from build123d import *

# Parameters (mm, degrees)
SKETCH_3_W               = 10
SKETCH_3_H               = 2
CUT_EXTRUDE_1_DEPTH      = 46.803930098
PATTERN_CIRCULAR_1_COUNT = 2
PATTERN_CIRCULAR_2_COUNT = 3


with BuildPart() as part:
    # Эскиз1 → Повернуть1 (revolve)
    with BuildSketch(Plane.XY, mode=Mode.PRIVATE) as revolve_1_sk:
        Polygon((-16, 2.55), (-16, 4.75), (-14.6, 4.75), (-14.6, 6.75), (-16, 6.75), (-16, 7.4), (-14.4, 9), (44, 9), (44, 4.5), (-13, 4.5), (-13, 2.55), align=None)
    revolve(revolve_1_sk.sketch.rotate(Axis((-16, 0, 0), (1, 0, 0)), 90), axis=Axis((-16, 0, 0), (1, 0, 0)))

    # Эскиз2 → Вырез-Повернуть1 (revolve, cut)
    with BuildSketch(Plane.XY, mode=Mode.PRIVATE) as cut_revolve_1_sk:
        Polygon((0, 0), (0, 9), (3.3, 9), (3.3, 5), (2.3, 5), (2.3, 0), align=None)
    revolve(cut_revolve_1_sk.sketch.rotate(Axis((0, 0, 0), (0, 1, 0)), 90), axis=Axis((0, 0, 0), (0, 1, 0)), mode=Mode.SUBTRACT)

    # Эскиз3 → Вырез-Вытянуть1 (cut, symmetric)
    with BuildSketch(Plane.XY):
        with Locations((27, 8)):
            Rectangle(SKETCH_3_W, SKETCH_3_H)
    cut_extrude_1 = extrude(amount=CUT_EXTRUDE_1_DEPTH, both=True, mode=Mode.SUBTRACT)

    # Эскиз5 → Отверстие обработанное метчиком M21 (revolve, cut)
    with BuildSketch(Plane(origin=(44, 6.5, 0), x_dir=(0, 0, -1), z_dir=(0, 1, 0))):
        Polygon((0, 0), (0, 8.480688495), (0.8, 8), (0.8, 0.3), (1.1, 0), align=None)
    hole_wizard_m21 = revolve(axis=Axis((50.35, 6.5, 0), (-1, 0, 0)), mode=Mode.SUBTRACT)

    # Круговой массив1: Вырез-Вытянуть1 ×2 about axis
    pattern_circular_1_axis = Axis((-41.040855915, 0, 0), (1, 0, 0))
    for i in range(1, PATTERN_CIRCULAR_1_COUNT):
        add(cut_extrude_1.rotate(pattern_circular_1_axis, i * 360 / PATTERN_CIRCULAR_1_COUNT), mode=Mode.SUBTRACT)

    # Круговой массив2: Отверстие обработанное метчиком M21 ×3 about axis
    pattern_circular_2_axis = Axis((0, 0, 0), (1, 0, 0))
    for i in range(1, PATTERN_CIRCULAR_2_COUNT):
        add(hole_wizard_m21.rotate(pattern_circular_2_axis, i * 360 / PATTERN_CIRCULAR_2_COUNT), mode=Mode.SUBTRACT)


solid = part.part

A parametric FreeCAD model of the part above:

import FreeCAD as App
import Part
import Sketcher
from FreeCAD import Vector
Q = App.Units.Quantity

doc = App.newDocument("Part")
body = doc.addObject("PartDesign::Body", "Body")

# Sketch on XY plane
sketch1 = body.newObject("Sketcher::SketchObject", "Sketch")
sketch1.AttachmentSupport = (doc.getObject("XY_Plane"), [""])
sketch1.MapMode = "FlatFace"
sketch1.addGeometry([
    Part.LineSegment(Vector(-16, 4.8, 0), Vector(-16, 2.5, 0)),  # 0
    Part.LineSegment(Vector(-16, 2.5, 0), Vector(-13, 2.5, 0)),  # 1
    Part.LineSegment(Vector(-13, 2.5, 0), Vector(-13, 4.5, 0)),  # 2
    Part.LineSegment(Vector(-13, 4.5, 0), Vector(44, 4.5, 0)),  # 3
    Part.LineSegment(Vector(44, 4.5, 0), Vector(44, 9, 0)),  # 4
    Part.LineSegment(Vector(44, 9, 0), Vector(-14.4, 9, 0)),  # 5
    Part.LineSegment(Vector(-14.4, 9, 0), Vector(-16, 7.4, 0)),  # 6
    Part.LineSegment(Vector(-16, 7.4, 0), Vector(-16, 6.8, 0)),  # 7
    Part.LineSegment(Vector(-16, 6.8, 0), Vector(-14.6, 6.8, 0)),  # 8
    Part.LineSegment(Vector(-14.6, 6.8, 0), Vector(-14.6, 4.8, 0)),  # 9
    Part.LineSegment(Vector(-14.6, 4.8, 0), Vector(-16, 4.8, 0)),  # 10
], False)
sketch1.addConstraint([
    Sketcher.Constraint("Coincident", 0, 2, 1, 1),
    Sketcher.Constraint("Coincident", 1, 2, 2, 1),
    Sketcher.Constraint("Coincident", 2, 2, 3, 1),
    Sketcher.Constraint("Coincident", 3, 2, 4, 1),
    Sketcher.Constraint("Coincident", 4, 2, 5, 1),
    Sketcher.Constraint("Coincident", 5, 2, 6, 1),
    Sketcher.Constraint("Coincident", 6, 2, 7, 1),
    Sketcher.Constraint("Coincident", 7, 2, 8, 1),
    Sketcher.Constraint("Coincident", 8, 2, 9, 1),
    Sketcher.Constraint("Coincident", 9, 2, 10, 1),
    Sketcher.Constraint("Coincident", 10, 2, 0, 1),
    Sketcher.Constraint("Vertical", 0),
    Sketcher.Constraint("Horizontal", 1),
    Sketcher.Constraint("Vertical", 2),
    Sketcher.Constraint("Horizontal", 3),
    Sketcher.Constraint("Vertical", 4),
    Sketcher.Constraint("Horizontal", 5),
    Sketcher.Constraint("Vertical", 7),
    Sketcher.Constraint("Horizontal", 8),
    Sketcher.Constraint("Vertical", 9),
    Sketcher.Constraint("Horizontal", 10),
    Sketcher.Constraint("Vertical", 0, 2, 6, 2),
    Sketcher.Constraint("DistanceX", 1, 1, 1, 2, Q("3 mm")),
    Sketcher.Constraint("DistanceX", 3, 1, 3, 2, Q("57 mm")),
    Sketcher.Constraint("DistanceY", 9, 2, 9, 1, Q("2 mm")),
    Sketcher.Constraint("Angle", 6, Q("-135 deg")),
    Sketcher.Constraint("DistanceX", 5, 2, 5, 1, Q("58.4 mm")),
    Sketcher.Constraint("DistanceX", 8, 1, 8, 2, Q("1.4 mm")),
    Sketcher.Constraint("DistanceY", 0, 2, 0, 1, Q("2.2 mm")),
    Sketcher.Constraint("DistanceY", 4, 1, 4, 2, Q("4.5 mm")),
    Sketcher.Constraint("DistanceX", 0, 2, -1, 1, Q("16 mm")),
    Sketcher.Constraint("DistanceY", -1, 1, 4, 2, Q("9 mm")),
    Sketcher.Constraint("DistanceY", 2, 1, 2, 2, Q("1.95 mm")),
])
revolution = body.newObject("PartDesign::Revolution", "Revolution")
revolution.Profile = sketch1
revolution.ReferenceAxis = (sketch1, ["H_Axis"])
revolution.Angle = 360

# Sketch on XY plane
sketch2 = body.newObject("Sketcher::SketchObject", "Sketch001")
sketch2.AttachmentSupport = (doc.getObject("XY_Plane"), [""])
sketch2.MapMode = "FlatFace"
sketch2.addGeometry([
    Part.LineSegment(Vector(0, 9, 0), Vector(0, 0, 0)),  # 0
    Part.LineSegment(Vector(0, 0, 0), Vector(2.3, 0, 0)),  # 1
    Part.LineSegment(Vector(2.3, 0, 0), Vector(2.3, 5, 0)),  # 2
    Part.LineSegment(Vector(2.3, 5, 0), Vector(3.3, 5, 0)),  # 3
    Part.LineSegment(Vector(3.3, 5, 0), Vector(3.3, 9, 0)),  # 4
    Part.LineSegment(Vector(3.3, 9, 0), Vector(0, 9, 0)),  # 5
], False)
sketch2.addConstraint([
    Sketcher.Constraint("Coincident", 0, 2, 1, 1),
    Sketcher.Constraint("Coincident", 1, 2, 2, 1),
    Sketcher.Constraint("Coincident", 2, 2, 3, 1),
    Sketcher.Constraint("Coincident", 3, 2, 4, 1),
    Sketcher.Constraint("Coincident", 4, 2, 5, 1),
    Sketcher.Constraint("Coincident", 5, 2, 0, 1),
    Sketcher.Constraint("Vertical", 0),
    Sketcher.Constraint("Horizontal", 1),
    Sketcher.Constraint("Vertical", 2),
    Sketcher.Constraint("Horizontal", 3),
    Sketcher.Constraint("Vertical", 4),
    Sketcher.Constraint("Horizontal", 5),
    Sketcher.Constraint("Coincident", 0, 2, -1, 1),
    Sketcher.Constraint("DistanceX", 3, 1, 3, 2, Q("1 mm")),
    Sketcher.Constraint("DistanceY", 0, 2, 0, 1, Q("9 mm")),
    Sketcher.Constraint("DistanceY", 2, 1, 2, 2, Q("5 mm")),
    Sketcher.Constraint("DistanceX", 1, 1, 1, 2, Q("2.3 mm")),
])
groove = body.newObject("PartDesign::Groove", "Groove")
groove.Profile = sketch2
groove.ReferenceAxis = (sketch2, ["V_Axis"])
groove.Angle = 360

# Sketch on XY plane
sketch3 = body.newObject("Sketcher::SketchObject", "Sketch002")
sketch3.AttachmentSupport = (doc.getObject("XY_Plane"), [""])
sketch3.MapMode = "FlatFace"
sketch3.addGeometry([
    Part.LineSegment(Vector(22, 9, 0), Vector(22, 7, 0)),
    Part.LineSegment(Vector(22, 7, 0), Vector(32, 7, 0)),
    Part.LineSegment(Vector(32, 7, 0), Vector(32, 9, 0)),
    Part.LineSegment(Vector(32, 9, 0), Vector(22, 9, 0)),
], False)
sketch3.addConstraint([
    Sketcher.Constraint("Coincident", 0, 2, 1, 1),
    Sketcher.Constraint("Coincident", 1, 2, 2, 1),
    Sketcher.Constraint("Coincident", 2, 2, 3, 1),
    Sketcher.Constraint("Coincident", 3, 2, 0, 1),
    Sketcher.Constraint("Vertical", 0),
    Sketcher.Constraint("Horizontal", 1),
    Sketcher.Constraint("Vertical", 2),
    Sketcher.Constraint("Horizontal", 3),
    Sketcher.Constraint("DistanceX", 1, 1, 1, 2, Q("10 mm")),
    Sketcher.Constraint("DistanceY", 0, 2, 0, 1, Q("2 mm")),
    Sketcher.Constraint("DistanceX", -1, 1, 0, 2, Q("22 mm")),
    Sketcher.Constraint("DistanceY", -1, 1, 0, 2, Q("7 mm")),
])
pocket1 = body.newObject("PartDesign::Pocket", "Pocket")
pocket1.Profile = sketch3
pocket1.Length = 93.60786
pocket1.Midplane = True

# Sketch on XZ plane
sketch4 = body.newObject("Sketcher::SketchObject", "Sketch003")
sketch4.AttachmentSupport = (doc.getObject("XZ_Plane"), [""])
sketch4.MapMode = "FlatFace"
sketch4.AttachmentOffset = App.Placement(Vector(0, 0, -6.5), App.Rotation())
sketch4.addGeometry([
    Part.LineSegment(Vector(35.52, 0, 0), Vector(44, 0, 0)),  # 0
    Part.LineSegment(Vector(44, 0, 0), Vector(44, -1.1, 0)),  # 1
    Part.LineSegment(Vector(44, -1.1, 0), Vector(43.7, -0.8, 0)),  # 2
    Part.LineSegment(Vector(43.7, -0.8, 0), Vector(36, -0.8, 0)),  # 3
    Part.LineSegment(Vector(36, -0.8, 0), Vector(35.52, 0, 0)),  # 4
], False)
sketch4.addConstraint([
    Sketcher.Constraint("Coincident", 0, 2, 1, 1),
    Sketcher.Constraint("Coincident", 1, 2, 2, 1),
    Sketcher.Constraint("Coincident", 2, 2, 3, 1),
    Sketcher.Constraint("Coincident", 3, 2, 4, 1),
    Sketcher.Constraint("Coincident", 4, 2, 0, 1),
    Sketcher.Constraint("Horizontal", 0),
    Sketcher.Constraint("Vertical", 1),
    Sketcher.Constraint("Horizontal", 3),
    Sketcher.Constraint("PointOnObject", 0, 2, -1),
    Sketcher.Constraint("Angle", 2, Q("135 deg")),
    Sketcher.Constraint("Angle", 4, Q("121 deg")),
    Sketcher.Constraint("DistanceX", 3, 2, 3, 1, Q("7.7 mm")),
    Sketcher.Constraint("DistanceY", 1, 2, 1, 1, Q("1.1 mm")),
    Sketcher.Constraint("DistanceX", -1, 1, 0, 2, Q("44 mm")),
    Sketcher.Constraint("DistanceX", -1, 1, 3, 2, Q("36 mm")),
])
groove2 = body.newObject("PartDesign::Groove", "Groove001")
groove2.Profile = sketch4
groove2.ReferenceAxis = (sketch4, ["H_Axis"])
groove2.Angle = 360
doc.recompute()

polarpattern = body.newObject("PartDesign::PolarPattern", "PolarPattern")
polarpattern.Originals = [pocket1]
polarpattern.Axis = (doc.getObject("X_Axis"), [""])
polarpattern.Angle = 360
polarpattern.Occurrences = 2
body.Tip = polarpattern
doc.recompute()

polarpattern2 = body.newObject("PartDesign::PolarPattern", "PolarPattern001")
polarpattern2.Originals = [groove2]
polarpattern2.Axis = (doc.getObject("X_Axis"), [""])
polarpattern2.Angle = 360
polarpattern2.Occurrences = 3
body.Tip = polarpattern2

doc.recompute()
